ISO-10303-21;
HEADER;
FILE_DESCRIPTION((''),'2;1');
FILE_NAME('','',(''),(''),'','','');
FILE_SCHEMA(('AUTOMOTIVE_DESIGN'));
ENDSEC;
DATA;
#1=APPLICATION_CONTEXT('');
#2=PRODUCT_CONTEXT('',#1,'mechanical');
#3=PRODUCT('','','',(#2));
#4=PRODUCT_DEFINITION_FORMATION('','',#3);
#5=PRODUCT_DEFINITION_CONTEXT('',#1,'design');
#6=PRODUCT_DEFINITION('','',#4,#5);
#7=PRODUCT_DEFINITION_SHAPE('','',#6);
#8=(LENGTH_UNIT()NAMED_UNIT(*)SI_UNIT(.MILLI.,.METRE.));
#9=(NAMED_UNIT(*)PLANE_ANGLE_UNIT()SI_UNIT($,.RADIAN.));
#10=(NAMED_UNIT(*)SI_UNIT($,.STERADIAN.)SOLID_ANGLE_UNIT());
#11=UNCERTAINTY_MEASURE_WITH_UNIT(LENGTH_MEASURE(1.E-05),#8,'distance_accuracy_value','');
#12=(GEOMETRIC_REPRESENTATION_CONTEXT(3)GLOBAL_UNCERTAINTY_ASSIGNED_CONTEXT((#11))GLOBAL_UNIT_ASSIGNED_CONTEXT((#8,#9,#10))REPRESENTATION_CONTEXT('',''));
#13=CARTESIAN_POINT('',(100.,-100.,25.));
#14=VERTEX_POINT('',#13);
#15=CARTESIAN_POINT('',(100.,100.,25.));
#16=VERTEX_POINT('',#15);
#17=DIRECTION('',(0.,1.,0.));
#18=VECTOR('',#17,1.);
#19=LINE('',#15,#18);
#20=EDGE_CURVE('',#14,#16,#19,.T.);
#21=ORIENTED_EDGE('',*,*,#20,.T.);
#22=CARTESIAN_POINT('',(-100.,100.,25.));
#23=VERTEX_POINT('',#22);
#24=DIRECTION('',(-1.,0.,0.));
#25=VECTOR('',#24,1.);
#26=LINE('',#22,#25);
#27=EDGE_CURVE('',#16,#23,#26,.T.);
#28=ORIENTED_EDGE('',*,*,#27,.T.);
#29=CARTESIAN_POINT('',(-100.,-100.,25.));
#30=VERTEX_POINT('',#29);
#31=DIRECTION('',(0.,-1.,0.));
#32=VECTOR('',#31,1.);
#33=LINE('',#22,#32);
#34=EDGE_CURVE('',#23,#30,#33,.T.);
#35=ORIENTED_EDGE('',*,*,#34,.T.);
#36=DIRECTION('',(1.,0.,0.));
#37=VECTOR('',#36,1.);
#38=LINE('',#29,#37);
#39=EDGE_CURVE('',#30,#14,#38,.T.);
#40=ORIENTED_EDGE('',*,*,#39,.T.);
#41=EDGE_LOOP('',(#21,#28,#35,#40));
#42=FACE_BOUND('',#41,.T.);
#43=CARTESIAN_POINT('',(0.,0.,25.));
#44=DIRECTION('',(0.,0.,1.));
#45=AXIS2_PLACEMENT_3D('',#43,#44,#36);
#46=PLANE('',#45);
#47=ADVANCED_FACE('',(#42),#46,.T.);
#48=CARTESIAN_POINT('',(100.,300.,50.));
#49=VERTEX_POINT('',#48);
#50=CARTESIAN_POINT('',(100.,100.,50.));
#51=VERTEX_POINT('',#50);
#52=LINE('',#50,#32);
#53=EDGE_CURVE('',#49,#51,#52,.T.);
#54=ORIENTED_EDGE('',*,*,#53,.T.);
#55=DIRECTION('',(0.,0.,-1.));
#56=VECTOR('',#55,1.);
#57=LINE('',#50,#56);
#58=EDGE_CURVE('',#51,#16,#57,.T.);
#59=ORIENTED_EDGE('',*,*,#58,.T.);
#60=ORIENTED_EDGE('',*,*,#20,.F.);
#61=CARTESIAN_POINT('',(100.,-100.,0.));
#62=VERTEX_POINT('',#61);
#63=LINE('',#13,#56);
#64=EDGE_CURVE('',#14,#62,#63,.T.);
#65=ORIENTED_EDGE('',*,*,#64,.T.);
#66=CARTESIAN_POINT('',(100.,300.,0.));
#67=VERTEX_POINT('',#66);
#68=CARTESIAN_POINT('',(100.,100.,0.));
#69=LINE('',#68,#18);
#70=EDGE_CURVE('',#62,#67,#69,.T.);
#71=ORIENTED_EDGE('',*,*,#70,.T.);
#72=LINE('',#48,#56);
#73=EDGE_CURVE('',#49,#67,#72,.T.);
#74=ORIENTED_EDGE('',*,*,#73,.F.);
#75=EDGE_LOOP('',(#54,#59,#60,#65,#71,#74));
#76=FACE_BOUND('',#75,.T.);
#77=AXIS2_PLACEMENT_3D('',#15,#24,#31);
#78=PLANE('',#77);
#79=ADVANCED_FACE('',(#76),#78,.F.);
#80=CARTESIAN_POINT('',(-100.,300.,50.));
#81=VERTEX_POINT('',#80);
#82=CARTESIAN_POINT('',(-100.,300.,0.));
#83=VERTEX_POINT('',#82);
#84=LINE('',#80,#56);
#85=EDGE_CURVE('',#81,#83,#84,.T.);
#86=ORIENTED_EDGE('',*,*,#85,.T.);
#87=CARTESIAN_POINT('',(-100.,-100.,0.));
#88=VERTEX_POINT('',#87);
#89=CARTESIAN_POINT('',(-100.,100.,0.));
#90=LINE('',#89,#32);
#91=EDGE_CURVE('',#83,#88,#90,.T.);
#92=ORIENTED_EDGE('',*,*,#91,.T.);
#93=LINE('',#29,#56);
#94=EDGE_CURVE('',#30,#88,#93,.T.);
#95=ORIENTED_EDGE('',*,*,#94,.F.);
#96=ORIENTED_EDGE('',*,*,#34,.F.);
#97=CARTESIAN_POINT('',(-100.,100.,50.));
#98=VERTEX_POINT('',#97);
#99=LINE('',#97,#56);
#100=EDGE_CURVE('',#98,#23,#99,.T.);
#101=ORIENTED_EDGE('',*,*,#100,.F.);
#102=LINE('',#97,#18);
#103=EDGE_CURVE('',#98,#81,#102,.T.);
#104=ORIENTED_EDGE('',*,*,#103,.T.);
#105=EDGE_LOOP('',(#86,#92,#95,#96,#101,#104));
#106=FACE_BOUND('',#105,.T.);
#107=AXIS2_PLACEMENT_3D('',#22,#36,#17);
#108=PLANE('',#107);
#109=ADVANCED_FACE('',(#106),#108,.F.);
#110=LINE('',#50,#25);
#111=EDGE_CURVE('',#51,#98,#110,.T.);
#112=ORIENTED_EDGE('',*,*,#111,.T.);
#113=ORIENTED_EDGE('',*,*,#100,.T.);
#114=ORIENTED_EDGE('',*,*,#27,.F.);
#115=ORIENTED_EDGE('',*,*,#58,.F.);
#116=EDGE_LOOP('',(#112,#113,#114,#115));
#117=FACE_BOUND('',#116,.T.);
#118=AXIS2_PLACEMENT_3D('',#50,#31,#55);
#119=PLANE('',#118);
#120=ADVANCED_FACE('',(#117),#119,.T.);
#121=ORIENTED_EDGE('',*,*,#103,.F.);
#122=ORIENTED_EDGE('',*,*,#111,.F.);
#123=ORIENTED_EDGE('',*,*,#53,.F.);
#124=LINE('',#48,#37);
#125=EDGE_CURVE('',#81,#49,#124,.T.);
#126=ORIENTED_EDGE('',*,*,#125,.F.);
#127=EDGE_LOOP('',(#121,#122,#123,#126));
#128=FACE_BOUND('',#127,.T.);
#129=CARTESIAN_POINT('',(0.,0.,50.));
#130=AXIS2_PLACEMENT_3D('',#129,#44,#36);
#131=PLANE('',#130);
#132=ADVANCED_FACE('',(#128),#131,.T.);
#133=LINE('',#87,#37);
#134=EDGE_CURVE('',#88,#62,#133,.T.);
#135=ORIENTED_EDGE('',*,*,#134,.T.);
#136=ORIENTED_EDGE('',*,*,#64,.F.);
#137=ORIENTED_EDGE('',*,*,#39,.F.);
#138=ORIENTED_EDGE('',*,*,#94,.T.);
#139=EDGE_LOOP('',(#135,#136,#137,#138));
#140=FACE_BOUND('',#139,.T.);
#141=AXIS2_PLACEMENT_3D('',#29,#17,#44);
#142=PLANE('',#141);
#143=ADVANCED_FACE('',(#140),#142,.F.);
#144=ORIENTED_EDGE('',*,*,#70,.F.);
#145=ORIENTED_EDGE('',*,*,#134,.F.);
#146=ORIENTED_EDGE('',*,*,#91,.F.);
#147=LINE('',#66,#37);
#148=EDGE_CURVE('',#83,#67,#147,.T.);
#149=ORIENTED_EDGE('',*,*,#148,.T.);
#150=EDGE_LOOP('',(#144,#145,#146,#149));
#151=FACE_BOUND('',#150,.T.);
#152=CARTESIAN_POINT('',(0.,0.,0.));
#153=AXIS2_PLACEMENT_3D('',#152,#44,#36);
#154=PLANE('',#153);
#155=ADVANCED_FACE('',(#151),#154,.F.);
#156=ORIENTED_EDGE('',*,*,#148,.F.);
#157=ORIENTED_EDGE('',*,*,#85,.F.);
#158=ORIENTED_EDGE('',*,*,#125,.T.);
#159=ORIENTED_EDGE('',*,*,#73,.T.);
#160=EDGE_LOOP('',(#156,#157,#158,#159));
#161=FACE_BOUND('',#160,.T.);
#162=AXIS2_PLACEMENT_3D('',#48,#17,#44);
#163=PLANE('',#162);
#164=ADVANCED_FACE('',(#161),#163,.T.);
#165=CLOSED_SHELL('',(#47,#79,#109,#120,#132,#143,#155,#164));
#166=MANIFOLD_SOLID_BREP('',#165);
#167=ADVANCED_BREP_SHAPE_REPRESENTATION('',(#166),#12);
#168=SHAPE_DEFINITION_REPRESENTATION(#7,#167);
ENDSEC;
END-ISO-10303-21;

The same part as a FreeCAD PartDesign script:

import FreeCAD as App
import Part
import Sketcher
from FreeCAD import Vector


def add_polygon(sketch, points):
    """Adds a closed chain of lines whose ends are joined by coincident constraints."""
    first, n = sketch.GeometryCount, len(points)
    for a, b in zip(points, points[1:] + points[:1]):
        sketch.addGeometry(Part.LineSegment(App.Vector(*a, 0), App.Vector(*b, 0)), False)
    for i in range(n):
        sketch.addConstraint(Sketcher.Constraint("Coincident", first + i, 2, first + (i + 1) % n, 1))

doc = App.newDocument("Part")
body = doc.addObject("PartDesign::Body", "Body")

# Sketch on XY plane
sketch1 = body.newObject("Sketcher::SketchObject", "Sketch")
sketch1.AttachmentSupport = (doc.getObject("XY_Plane"), [""])
sketch1.MapMode = "FlatFace"
add_polygon(sketch1, [(-100, 100), (-100, -100), (100, -100), (100, 100)])  # lines 0-3
sketch1.addConstraint([
    Sketcher.Constraint("Vertical", 0),
    Sketcher.Constraint("Horizontal", 1),
    Sketcher.Constraint("Vertical", 2),
    Sketcher.Constraint("Horizontal", 3),
    Sketcher.Constraint("Symmetric", 0, 2, 2, 2, -1, 1),
    Sketcher.Constraint("Equal", 3, 0),
    Sketcher.Constraint("DistanceX", 1, 1, 1, 2, 200.0),
])
pad1 = body.newObject("PartDesign::Pad", "Pad")
pad1.Profile = sketch1
pad1.Length = 25

# Sketch on XY plane
sketch2 = body.newObject("Sketcher::SketchObject", "Sketch001")
sketch2.AttachmentSupport = (doc.getObject("XY_Plane"), [""])
sketch2.MapMode = "FlatFace"
add_polygon(sketch2, [(100, 300), (100, 100), (-100, 100), (-100, 300)])  # lines 0-3
sketch2.addConstraint([
    Sketcher.Constraint("Vertical", 0),
    Sketcher.Constraint("Horizontal", 1),
    Sketcher.Constraint("Vertical", 2),
    Sketcher.Constraint("Horizontal", 3),
    Sketcher.Constraint("Equal", 3, 0),
    Sketcher.Constraint("DistanceX", 1, 2, 1, 1, 200.0),
    Sketcher.Constraint("DistanceX", -1, 1, 0, 2, 100.0),
    Sketcher.Constraint("DistanceY", -1, 1, 0, 2, 100.0),
])
pad2 = body.newObject("PartDesign::Pad", "Pad001")
pad2.Profile = sketch2
pad2.Length = 50

doc.recompute()
